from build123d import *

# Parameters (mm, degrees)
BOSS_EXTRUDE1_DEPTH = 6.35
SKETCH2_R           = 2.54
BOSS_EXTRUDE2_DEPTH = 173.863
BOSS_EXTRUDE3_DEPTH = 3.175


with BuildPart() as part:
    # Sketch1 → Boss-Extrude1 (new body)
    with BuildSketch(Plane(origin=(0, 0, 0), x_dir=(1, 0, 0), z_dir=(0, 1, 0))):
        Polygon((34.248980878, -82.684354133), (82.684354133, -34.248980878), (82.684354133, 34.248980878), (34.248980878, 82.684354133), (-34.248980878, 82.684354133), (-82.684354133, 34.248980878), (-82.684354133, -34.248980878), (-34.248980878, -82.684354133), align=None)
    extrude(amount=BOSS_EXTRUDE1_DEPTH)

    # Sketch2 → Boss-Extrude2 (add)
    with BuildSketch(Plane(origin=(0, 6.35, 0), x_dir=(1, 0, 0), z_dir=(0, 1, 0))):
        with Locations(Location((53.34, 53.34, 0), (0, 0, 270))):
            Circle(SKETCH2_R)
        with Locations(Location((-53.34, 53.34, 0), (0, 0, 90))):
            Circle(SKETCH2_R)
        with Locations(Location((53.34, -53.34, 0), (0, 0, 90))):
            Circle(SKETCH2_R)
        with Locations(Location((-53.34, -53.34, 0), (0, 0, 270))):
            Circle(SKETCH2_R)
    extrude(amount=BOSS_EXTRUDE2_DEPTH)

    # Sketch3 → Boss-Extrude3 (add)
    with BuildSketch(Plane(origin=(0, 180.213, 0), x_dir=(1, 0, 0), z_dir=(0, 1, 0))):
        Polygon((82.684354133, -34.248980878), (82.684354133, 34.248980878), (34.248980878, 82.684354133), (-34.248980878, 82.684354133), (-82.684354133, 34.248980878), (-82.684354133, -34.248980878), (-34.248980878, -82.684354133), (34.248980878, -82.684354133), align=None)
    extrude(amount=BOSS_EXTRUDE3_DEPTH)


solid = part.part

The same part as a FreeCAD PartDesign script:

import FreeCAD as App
import Part
import Sketcher
Q = App.Units.Quantity

doc = App.newDocument("Part")
body = doc.addObject("PartDesign::Body", "Body")

sketch1 = body.newObject("Sketcher::SketchObject", "Sketch")
sketch1.AttachmentSupport = (doc.getObject("XZ_Plane"), [""])
sketch1.MapMode = "FlatFace"
sketch1.addGeometry([
    Part.LineSegment(App.Vector(34, 83, 0), App.Vector(83, 34, 0)),
    Part.LineSegment(App.Vector(83, 34, 0), App.Vector(83, -34, 0)),
    Part.LineSegment(App.Vector(83, -34, 0), App.Vector(34, -83, 0)),
    Part.LineSegment(App.Vector(34, -83, 0), App.Vector(-34, -83, 0)),
    Part.LineSegment(App.Vector(-34, -83, 0), App.Vector(-83, -34, 0)),
    Part.LineSegment(App.Vector(-83, -34, 0), App.Vector(-83, 34, 0)),
    Part.LineSegment(App.Vector(-83, 34, 0), App.Vector(-34, 83, 0)),
    Part.LineSegment(App.Vector(-34, 83, 0), App.Vector(34, 83, 0)),
], False)
sketch1.addConstraint([
    Sketcher.Constraint("Coincident", 0, 2, 1, 1),
    Sketcher.Constraint("Coincident", 1, 2, 2, 1),
    Sketcher.Constraint("Coincident", 2, 2, 3, 1),
    Sketcher.Constraint("Coincident", 3, 2, 4, 1),
    Sketcher.Constraint("Coincident", 4, 2, 5, 1),
    Sketcher.Constraint("Coincident", 5, 2, 6, 1),
    Sketcher.Constraint("Coincident", 6, 2, 7, 1),
    Sketcher.Constraint("Coincident", 7, 2, 0, 1),
    Sketcher.Constraint("Vertical", 1),
    Sketcher.Constraint("Horizontal", 3),
    Sketcher.Constraint("Vertical", 5),
    Sketcher.Constraint("Horizontal", 7),
    Sketcher.Constraint("Symmetric", 0, 2, 4, 2, -1, 1),
    Sketcher.Constraint("Symmetric", 2, 2, 6, 2, -1, 1),
    Sketcher.Constraint("Perpendicular", 0, 2),
    Sketcher.Constraint("Perpendicular", 2, 4),
    Sketcher.Constraint("Perpendicular", 4, 6),
    Sketcher.Constraint("Horizontal", 1, 2, 4, 2),
    Sketcher.Constraint("Vertical", 3, 2, 6, 2),
    Sketcher.Constraint("Equal", 7, 1),
    Sketcher.Constraint("DistanceX", 3, 2, 3, 1, 68.497962),
    Sketcher.Constraint("Distance", 0, 68.497962),
])
pad1 = body.newObject("PartDesign::Pad", "Pad")
pad1.Profile = sketch1
pad1.Length = Q("0.25 in")
pad1.Reversed = True

sketch2 = body.newObject("Sketcher::SketchObject", "Sketch001")
sketch2.AttachmentSupport = (doc.getObject("XZ_Plane"), [""])
sketch2.MapMode = "FlatFace"
sketch2.AttachmentOffset = App.Placement(App.Vector(0, 0, -0.25 * 25.4), App.Rotation())
sketch2.addGeometry([
    Part.Circle(App.Vector(53.3, -53.3, 0), App.Vector(0, 0, 1), 2.5),
    Part.Circle(App.Vector(-53.3, -53.3, 0), App.Vector(0, 0, 1), 2.5),
    Part.Circle(App.Vector(53.3, 53.3, 0), App.Vector(0, 0, 1), 2.5),
    Part.Circle(App.Vector(-53.3, 53.3, 0), App.Vector(0, 0, 1), 2.5),
], False)
sketch2.addConstraint([
    Sketcher.Constraint("Equal", 0, 1),
    Sketcher.Constraint("Equal", 1, 2),
    Sketcher.Constraint("Equal", 2, 3),
    Sketcher.Constraint("Symmetric", 1, 3, 2, 3, -1, 1),
    Sketcher.Constraint("Symmetric", 0, 3, 3, 3, -1, 1),
    Sketcher.Constraint("Symmetric", 0, 3, 1, 3, -2),
    Sketcher.Constraint("Diameter", 0, Q("0.2 in")),
    Sketcher.Constraint("DistanceX", -1, 1, 0, 3, Q("2.1 in")),
    Sketcher.Constraint("DistanceY", 0, 3, -1, 1, Q("2.1 in")),
])
pad2 = body.newObject("PartDesign::Pad", "Pad001")
pad2.Profile = sketch2
pad2.Length = Q("6.845 in")
pad2.Reversed = True

sketch3 = body.newObject("Sketcher::SketchObject", "Sketch002")
sketch3.AttachmentSupport = (doc.getObject("XZ_Plane"), [""])
sketch3.MapMode = "FlatFace"
sketch3.AttachmentOffset = App.Placement(App.Vector(0, 0, -7.095 * 25.4), App.Rotation())
sketch3.addGeometry([
    Part.LineSegment(App.Vector(83, 34, 0), App.Vector(83, -34, 0)),
    Part.LineSegment(App.Vector(83, -34, 0), App.Vector(34, -83, 0)),
    Part.LineSegment(App.Vector(34, -83, 0), App.Vector(-34, -83, 0)),
    Part.LineSegment(App.Vector(-34, -83, 0), App.Vector(-83, -34, 0)),
    Part.LineSegment(App.Vector(-83, -34, 0), App.Vector(-83, 34, 0)),
    Part.LineSegment(App.Vector(-83, 34, 0), App.Vector(-34, 83, 0)),
    Part.LineSegment(App.Vector(-34, 83, 0), App.Vector(34, 83, 0)),
    Part.LineSegment(App.Vector(34, 83, 0), App.Vector(83, 34, 0)),
], False)
sketch3.addConstraint([
    Sketcher.Constraint("Coincident", 0, 2, 1, 1),
    Sketcher.Constraint("Coincident", 1, 2, 2, 1),
    Sketcher.Constraint("Coincident", 2, 2, 3, 1),
    Sketcher.Constraint("Coincident", 3, 2, 4, 1),
    Sketcher.Constraint("Coincident", 4, 2, 5, 1),
    Sketcher.Constraint("Coincident", 5, 2, 6, 1),
    Sketcher.Constraint("Coincident", 6, 2, 7, 1),
    Sketcher.Constraint("Coincident", 7, 2, 0, 1),
    Sketcher.Constraint("Vertical", 0),
    Sketcher.Constraint("Horizontal", 2),
    Sketcher.Constraint("Vertical", 4),
    Sketcher.Constraint("Horizontal", 6),
    Sketcher.Constraint("Symmetric", 0, 2, 4, 2, -1, 1),
    Sketcher.Constraint("Symmetric", 1, 2, 5, 2, -1, 1),
    Sketcher.Constraint("Perpendicular", 1, 3),
    Sketcher.Constraint("Perpendicular", 5, 7),
    Sketcher.Constraint("Horizontal", 0, 2, 3, 2),
    Sketcher.Constraint("Horizontal", 4, 2, 7, 2),
    Sketcher.Constraint("Vertical", 2, 2, 5, 2),
    Sketcher.Constraint("Equal", 6, 0),
    Sketcher.Constraint("DistanceX", 2, 2, 2, 1, 68.497962),
    Sketcher.Constraint("Distance", 1, 68.497962),
])
pad3 = body.newObject("PartDesign::Pad", "Pad002")
pad3.Profile = sketch3
pad3.Length = Q("0.125 in")
pad3.Reversed = True

doc.recompute()
